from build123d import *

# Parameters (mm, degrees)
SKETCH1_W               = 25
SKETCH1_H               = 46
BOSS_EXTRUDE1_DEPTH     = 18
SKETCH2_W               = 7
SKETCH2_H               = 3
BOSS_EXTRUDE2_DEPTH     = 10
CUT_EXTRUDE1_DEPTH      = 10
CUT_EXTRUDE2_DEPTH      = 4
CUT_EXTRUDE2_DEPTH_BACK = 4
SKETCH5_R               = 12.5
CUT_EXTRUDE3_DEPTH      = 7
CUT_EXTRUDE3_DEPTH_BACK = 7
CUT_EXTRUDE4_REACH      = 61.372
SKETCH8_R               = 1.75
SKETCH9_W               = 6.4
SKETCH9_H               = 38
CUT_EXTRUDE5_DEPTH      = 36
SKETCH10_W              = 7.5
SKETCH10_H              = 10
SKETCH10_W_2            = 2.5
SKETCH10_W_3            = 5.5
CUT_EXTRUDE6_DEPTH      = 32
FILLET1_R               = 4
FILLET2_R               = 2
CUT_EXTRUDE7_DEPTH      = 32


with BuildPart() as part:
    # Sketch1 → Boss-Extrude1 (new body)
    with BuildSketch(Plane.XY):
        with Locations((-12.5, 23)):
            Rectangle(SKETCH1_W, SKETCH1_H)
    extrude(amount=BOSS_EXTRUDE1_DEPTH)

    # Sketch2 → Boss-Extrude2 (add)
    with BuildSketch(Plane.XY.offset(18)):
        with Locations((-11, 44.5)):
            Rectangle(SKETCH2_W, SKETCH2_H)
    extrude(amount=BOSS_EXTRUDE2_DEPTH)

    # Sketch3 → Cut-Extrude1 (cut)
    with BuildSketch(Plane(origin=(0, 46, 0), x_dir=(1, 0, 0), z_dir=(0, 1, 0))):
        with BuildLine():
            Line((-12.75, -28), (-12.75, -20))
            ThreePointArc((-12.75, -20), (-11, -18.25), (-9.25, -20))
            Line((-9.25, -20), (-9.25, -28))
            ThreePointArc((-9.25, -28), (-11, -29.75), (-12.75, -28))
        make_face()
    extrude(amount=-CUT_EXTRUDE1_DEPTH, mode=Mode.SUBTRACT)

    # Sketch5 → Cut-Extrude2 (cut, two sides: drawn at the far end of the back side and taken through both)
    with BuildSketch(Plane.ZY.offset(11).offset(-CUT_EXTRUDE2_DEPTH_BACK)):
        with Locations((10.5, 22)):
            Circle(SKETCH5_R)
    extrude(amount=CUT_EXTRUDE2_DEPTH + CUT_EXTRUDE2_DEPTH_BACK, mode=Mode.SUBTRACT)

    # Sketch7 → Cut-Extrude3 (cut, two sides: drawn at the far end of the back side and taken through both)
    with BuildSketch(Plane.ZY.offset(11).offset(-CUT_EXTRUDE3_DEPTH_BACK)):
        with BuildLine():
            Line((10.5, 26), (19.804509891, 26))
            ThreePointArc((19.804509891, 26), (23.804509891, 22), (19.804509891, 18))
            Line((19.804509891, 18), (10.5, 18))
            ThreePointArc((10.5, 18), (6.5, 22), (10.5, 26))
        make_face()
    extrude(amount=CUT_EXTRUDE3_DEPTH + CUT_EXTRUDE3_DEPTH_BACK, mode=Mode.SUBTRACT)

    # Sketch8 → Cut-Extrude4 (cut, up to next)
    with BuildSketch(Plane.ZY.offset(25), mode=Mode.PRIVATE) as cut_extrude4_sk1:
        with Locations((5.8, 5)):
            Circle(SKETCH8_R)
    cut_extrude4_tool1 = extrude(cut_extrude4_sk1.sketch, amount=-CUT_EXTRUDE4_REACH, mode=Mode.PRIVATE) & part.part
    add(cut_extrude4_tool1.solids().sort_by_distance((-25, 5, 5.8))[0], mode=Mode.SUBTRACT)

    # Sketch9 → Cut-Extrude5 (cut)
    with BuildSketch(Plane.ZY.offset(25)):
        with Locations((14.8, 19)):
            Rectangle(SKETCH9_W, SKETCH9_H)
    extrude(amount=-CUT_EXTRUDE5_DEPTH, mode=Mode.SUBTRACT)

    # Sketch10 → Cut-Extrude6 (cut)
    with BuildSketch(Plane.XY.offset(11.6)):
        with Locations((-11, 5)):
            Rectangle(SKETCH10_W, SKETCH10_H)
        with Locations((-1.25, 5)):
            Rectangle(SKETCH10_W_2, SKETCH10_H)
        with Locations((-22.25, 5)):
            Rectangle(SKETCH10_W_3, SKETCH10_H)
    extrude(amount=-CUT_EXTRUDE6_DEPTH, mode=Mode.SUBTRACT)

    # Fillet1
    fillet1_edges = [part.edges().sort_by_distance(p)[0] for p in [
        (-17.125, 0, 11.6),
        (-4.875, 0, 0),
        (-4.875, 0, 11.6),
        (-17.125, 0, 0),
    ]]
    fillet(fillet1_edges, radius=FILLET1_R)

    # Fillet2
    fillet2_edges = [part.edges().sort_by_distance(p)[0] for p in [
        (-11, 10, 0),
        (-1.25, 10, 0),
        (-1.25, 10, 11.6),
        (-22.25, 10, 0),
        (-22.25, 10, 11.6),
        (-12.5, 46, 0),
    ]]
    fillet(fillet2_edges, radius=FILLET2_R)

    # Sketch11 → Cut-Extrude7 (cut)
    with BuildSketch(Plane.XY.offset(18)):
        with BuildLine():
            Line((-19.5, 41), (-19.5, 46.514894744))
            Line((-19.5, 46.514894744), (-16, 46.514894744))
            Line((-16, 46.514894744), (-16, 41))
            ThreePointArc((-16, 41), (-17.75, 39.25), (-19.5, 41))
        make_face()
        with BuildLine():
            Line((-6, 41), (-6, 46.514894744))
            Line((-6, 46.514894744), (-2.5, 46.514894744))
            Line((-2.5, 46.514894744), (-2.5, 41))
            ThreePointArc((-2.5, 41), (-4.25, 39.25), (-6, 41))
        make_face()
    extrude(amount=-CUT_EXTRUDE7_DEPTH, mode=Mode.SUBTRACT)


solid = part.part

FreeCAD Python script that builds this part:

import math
import FreeCAD as App
import Part
import Sketcher

V = App.Vector
Q = App.Units.Quantity


def edges_at(feature, points):
    """Names of the edges that pass closest to the given points."""
    edges = feature.Shape.Edges
    near = lambda p: min(range(len(edges)), key=lambda i: edges[i].distToShape(Part.Vertex(*p))[0])
    return sorted({f"Edge{near(p) + 1}" for p in points})

doc = App.newDocument("Part")
body = doc.addObject("PartDesign::Body", "Body")

sketch1 = body.newObject("Sketcher::SketchObject", "Sketch")
sketch1.AttachmentSupport = (doc.getObject("XY_Plane"), [""])
sketch1.MapMode = "FlatFace"
sketch1.addGeometry(Part.LineSegment(V(-25, 46, 0), V(-25, 0, 0)), False)
sketch1.addGeometry(Part.LineSegment(V(-25, 0, 0), V(0, 0, 0)), False)
sketch1.addGeometry(Part.LineSegment(V(0, 0, 0), V(0, 46, 0)), False)
sketch1.addGeometry(Part.LineSegment(V(0, 46, 0), V(-25, 46, 0)), False)
sketch1.addConstraint(Sketcher.Constraint("Coincident", 0, 2, 1, 1))
sketch1.addConstraint(Sketcher.Constraint("Coincident", 1, 2, 2, 1))
sketch1.addConstraint(Sketcher.Constraint("Coincident", 2, 2, 3, 1))
sketch1.addConstraint(Sketcher.Constraint("Coincident", 3, 2, 0, 1))
sketch1.addConstraint(Sketcher.Constraint("Vertical", 0))
sketch1.addConstraint(Sketcher.Constraint("Horizontal", 1))
sketch1.addConstraint(Sketcher.Constraint("Vertical", 2))
sketch1.addConstraint(Sketcher.Constraint("Horizontal", 3))
sketch1.addConstraint(Sketcher.Constraint("Coincident", 1, 2, -1, 1))
sketch1.addConstraint(Sketcher.Constraint("DistanceX", 1, 1, 1, 2, Q("25 mm")))
sketch1.addConstraint(Sketcher.Constraint("DistanceY", 0, 2, 0, 1, Q("46 mm")))
pad1 = body.newObject("PartDesign::Pad", "Pad")
pad1.Profile = sketch1
pad1.Length = 18

sketch2 = body.newObject("Sketcher::SketchObject", "Sketch001")
sketch2.AttachmentSupport = (doc.getObject("XY_Plane"), [""])
sketch2.MapMode = "FlatFace"
sketch2.AttachmentOffset = App.Placement(V(0, 0, 18), App.Rotation())
sketch2.addGeometry(Part.LineSegment(V(-14.5, 46, 0), V(-14.5, 43, 0)), False)
sketch2.addGeometry(Part.LineSegment(V(-14.5, 43, 0), V(-7.5, 43, 0)), False)
sketch2.addGeometry(Part.LineSegment(V(-7.5, 43, 0), V(-7.5, 46, 0)), False)
sketch2.addGeometry(Part.LineSegment(V(-7.5, 46, 0), V(-14.5, 46, 0)), False)
sketch2.addConstraint(Sketcher.Constraint("Coincident", 0, 2, 1, 1))
sketch2.addConstraint(Sketcher.Constraint("Coincident", 1, 2, 2, 1))
sketch2.addConstraint(Sketcher.Constraint("Coincident", 2, 2, 3, 1))
sketch2.addConstraint(Sketcher.Constraint("Coincident", 3, 2, 0, 1))
sketch2.addConstraint(Sketcher.Constraint("Vertical", 0))
sketch2.addConstraint(Sketcher.Constraint("Horizontal", 1))
sketch2.addConstraint(Sketcher.Constraint("Vertical", 2))
sketch2.addConstraint(Sketcher.Constraint("Horizontal", 3))
sketch2.addConstraint(Sketcher.Constraint("DistanceX", 1, 1, 1, 2, Q("7 mm")))
sketch2.addConstraint(Sketcher.Constraint("DistanceY", 0, 2, 0, 1, Q("3 mm")))
sketch2.addConstraint(Sketcher.Constraint("DistanceY", -1, 1, 0, 2, Q("43 mm")))
sketch2.addConstraint(Sketcher.Constraint("DistanceX", 0, 2, -1, 1, Q("14.5 mm")))
pad2 = body.newObject("PartDesign::Pad", "Pad001")
pad2.Profile = sketch2
pad2.Length = 10

sketch3 = body.newObject("Sketcher::SketchObject", "Sketch002")
sketch3.AttachmentSupport = (doc.getObject("XZ_Plane"), [""])
sketch3.MapMode = "FlatFace"
sketch3.AttachmentOffset = App.Placement(V(0, 0, -46), App.Rotation())
sketch3.addGeometry(Part.LineSegment(V(-12.75, 20, 0), V(-12.75, 28, 0)), False)
sketch3.addGeometry(Part.ArcOfCircle(Part.Circle(V(-11, 28, 0), V(0, 0, 1), 1.75), math.radians(0), math.radians(180)), False)
sketch3.addGeometry(Part.LineSegment(V(-9.25, 28, 0), V(-9.25, 20, 0)), False)
sketch3.addGeometry(Part.ArcOfCircle(Part.Circle(V(-11, 20, 0), V(0, 0, 1), 1.75), math.radians(180), math.radians(360)), False)
sketch3.addConstraint(Sketcher.Constraint("Tangent", 0, 2, 1, 2))
sketch3.addConstraint(Sketcher.Constraint("Tangent", 1, 1, 2, 1))
sketch3.addConstraint(Sketcher.Constraint("Tangent", 2, 2, 3, 2))
sketch3.addConstraint(Sketcher.Constraint("Tangent", 3, 1, 0, 1))
sketch3.addConstraint(Sketcher.Constraint("Vertical", 0))
sketch3.addConstraint(Sketcher.Constraint("Vertical", 2))
sketch3.addConstraint(Sketcher.Constraint("DistanceY", 0, 1, 0, 2, Q("8 mm")))
sketch3.addConstraint(Sketcher.Constraint("Radius", 1, Q("1.75 mm")))
sketch3.addConstraint(Sketcher.Constraint("DistanceX", 1, 3, -1, 1, Q("11 mm")))
sketch3.addConstraint(Sketcher.Constraint("DistanceY", -1, 1, 1, 3, Q("28 mm")))
pocket1 = body.newObject("PartDesign::Pocket", "Pocket")
pocket1.Profile = sketch3
pocket1.Length = 10
pocket1.Reversed = True

sketch4 = body.newObject("Sketcher::SketchObject", "Sketch003")
sketch4.AttachmentSupport = (doc.getObject("YZ_Plane"), [""])
sketch4.MapMode = "FlatFace"
sketch4.AttachmentOffset = App.Placement(V(0, 0, -11), App.Rotation())
sketch4.addGeometry(Part.Circle(V(22, 10.5, 0), V(0, 0, 1), 12.5), False)
sketch4.addConstraint(Sketcher.Constraint("Diameter", 0, Q("25 mm")))
sketch4.addConstraint(Sketcher.Constraint("DistanceX", -1, 1, 0, 3, Q("22 mm")))
sketch4.addConstraint(Sketcher.Constraint("DistanceY", -1, 1, 0, 3, Q("10.5 mm")))
pocket2 = body.newObject("PartDesign::Pocket", "Pocket001")
pocket2.Profile = sketch4
pocket2.Type = "TwoLengths"
pocket2.Length = 4
pocket2.Length2 = 4

sketch5 = body.newObject("Sketcher::SketchObject", "Sketch004")
sketch5.AttachmentSupport = (doc.getObject("YZ_Plane"), [""])
sketch5.MapMode = "FlatFace"
sketch5.AttachmentOffset = App.Placement(V(0, 0, -11), App.Rotation())
sketch5.addGeometry(Part.LineSegment(V(26, 19.80451, 0), V(26, 10.5, 0)), False)
sketch5.addGeometry(Part.ArcOfCircle(Part.Circle(V(22, 10.5, 0), V(0, 0, 1), 4), math.radians(180), math.radians(360)), False)
sketch5.addGeometry(Part.LineSegment(V(18, 10.5, 0), V(18, 19.80451, 0)), False)
sketch5.addGeometry(Part.ArcOfCircle(Part.Circle(V(22, 19.80451, 0), V(0, 0, 1), 4), math.radians(0), math.radians(180)), False)
sketch5.addConstraint(Sketcher.Constraint("Tangent", 0, 2, 1, 2))
sketch5.addConstraint(Sketcher.Constraint("Tangent", 1, 1, 2, 1))
sketch5.addConstraint(Sketcher.Constraint("Tangent", 2, 2, 3, 2))
sketch5.addConstraint(Sketcher.Constraint("Tangent", 3, 1, 0, 1))
sketch5.addConstraint(Sketcher.Constraint("Vertical", 0))
sketch5.addConstraint(Sketcher.Constraint("Vertical", 2))
sketch5.addConstraint(Sketcher.Constraint("Radius", 1, Q("4 mm")))
sketch5.addConstraint(Sketcher.Constraint("DistanceX", -1, 1, 1, 3, Q("22 mm")))
sketch5.addConstraint(Sketcher.Constraint("DistanceY", -1, 1, 1, 3, Q("10.5 mm")))
sketch5.addConstraint(Sketcher.Constraint("DistanceY", 0, 2, 0, 1, Q("9.30451 mm")))
pocket3 = body.newObject("PartDesign::Pocket", "Pocket002")
pocket3.Profile = sketch5
pocket3.Type = "TwoLengths"
pocket3.Length = 7
pocket3.Length2 = 7

sketch6 = body.newObject("Sketcher::SketchObject", "Sketch005")
sketch6.AttachmentSupport = (doc.getObject("YZ_Plane"), [""])
sketch6.MapMode = "FlatFace"
sketch6.AttachmentOffset = App.Placement(V(0, 0, -25), App.Rotation())
sketch6.addGeometry(Part.Circle(V(5, 5.8, 0), V(0, 0, 1), 1.75), False)
sketch6.addConstraint(Sketcher.Constraint("Diameter", 0, Q("3.5 mm")))
sketch6.addConstraint(Sketcher.Constraint("DistanceX", -1, 1, 0, 3, Q("5 mm")))
sketch6.addConstraint(Sketcher.Constraint("DistanceY", -1, 1, 0, 3, Q("5.8 mm")))
pocket4 = body.newObject("PartDesign::Pocket", "Pocket003")
pocket4.Profile = sketch6
pocket4.Type = "UpToFirst"
pocket4.Reversed = True

sketch7 = body.newObject("Sketcher::SketchObject", "Sketch006")
sketch7.AttachmentSupport = (doc.getObject("YZ_Plane"), [""])
sketch7.MapMode = "FlatFace"
sketch7.AttachmentOffset = App.Placement(V(0, 0, -25), App.Rotation())
sketch7.addGeometry(Part.LineSegment(V(38, 11.6, 0), V(0, 11.6, 0)), False)
sketch7.addGeometry(Part.LineSegment(V(0, 11.6, 0), V(0, 18, 0)), False)
sketch7.addGeometry(Part.LineSegment(V(0, 18, 0), V(38, 18, 0)), False)
sketch7.addGeometry(Part.LineSegment(V(38, 18, 0), V(38, 11.6, 0)), False)
sketch7.addConstraint(Sketcher.Constraint("Coincident", 0, 2, 1, 1))
sketch7.addConstraint(Sketcher.Constraint("Coincident", 1, 2, 2, 1))
sketch7.addConstraint(Sketcher.Constraint("Coincident", 2, 2, 3, 1))
sketch7.addConstraint(Sketcher.Constraint("Coincident", 3, 2, 0, 1))
sketch7.addConstraint(Sketcher.Constraint("Horizontal", 0))
sketch7.addConstraint(Sketcher.Constraint("Vertical", 1))
sketch7.addConstraint(Sketcher.Constraint("Horizontal", 2))
sketch7.addConstraint(Sketcher.Constraint("Vertical", 3))
sketch7.addConstraint(Sketcher.Constraint("PointOnObject", 0, 2, -2))
sketch7.addConstraint(Sketcher.Constraint("DistanceX", 0, 2, 0, 1, Q("38 mm")))
sketch7.addConstraint(Sketcher.Constraint("DistanceY", 1, 1, 1, 2, Q("6.4 mm")))
sketch7.addConstraint(Sketcher.Constraint("DistanceY", -1, 1, 1, 2, Q("18 mm")))
pocket5 = body.newObject("PartDesign::Pocket", "Pocket004")
pocket5.Profile = sketch7
pocket5.Length = 36
pocket5.Reversed = True

sketch8 = body.newObject("Sketcher::SketchObject", "Sketch007")
sketch8.AttachmentSupport = (doc.getObject("XY_Plane"), [""])
sketch8.MapMode = "FlatFace"
sketch8.AttachmentOffset = App.Placement(V(0, 0, 11.6), App.Rotation())
sketch8.addGeometry(Part.LineSegment(V(-14.75, 10, 0), V(-14.75, 0, 0)), False)
sketch8.addGeometry(Part.LineSegment(V(-14.75, 0, 0), V(-7.25, 0, 0)), False)
sketch8.addGeometry(Part.LineSegment(V(-7.25, 0, 0), V(-7.25, 10, 0)), False)
sketch8.addGeometry(Part.LineSegment(V(-7.25, 10, 0), V(-14.75, 10, 0)), False)
sketch8.addGeometry(Part.LineSegment(V(-2.5, 10, 0), V(-2.5, 0, 0)), False)
sketch8.addGeometry(Part.LineSegment(V(-2.5, 0, 0), V(0, 0, 0)), False)
sketch8.addGeometry(Part.LineSegment(V(0, 0, 0), V(0, 10, 0)), False)
sketch8.addGeometry(Part.LineSegment(V(0, 10, 0), V(-2.5, 10, 0)), False)
sketch8.addGeometry(Part.LineSegment(V(-25, 10, 0), V(-25, 0, 0)), False)
sketch8.addGeometry(Part.LineSegment(V(-25, 0, 0), V(-19.5, 0, 0)), False)
sketch8.addGeometry(Part.LineSegment(V(-19.5, 0, 0), V(-19.5, 10, 0)), False)
sketch8.addGeometry(Part.LineSegment(V(-19.5, 10, 0), V(-25, 10, 0)), False)
sketch8.addConstraint(Sketcher.Constraint("Coincident", 0, 2, 1, 1))
sketch8.addConstraint(Sketcher.Constraint("Coincident", 1, 2, 2, 1))
sketch8.addConstraint(Sketcher.Constraint("Coincident", 2, 2, 3, 1))
sketch8.addConstraint(Sketcher.Constraint("Coincident", 3, 2, 0, 1))
sketch8.addConstraint(Sketcher.Constraint("Coincident", 4, 2, 5, 1))
sketch8.addConstraint(Sketcher.Constraint("Coincident", 5, 2, 6, 1))
sketch8.addConstraint(Sketcher.Constraint("Coincident", 6, 2, 7, 1))
sketch8.addConstraint(Sketcher.Constraint("Coincident", 7, 2, 4, 1))
sketch8.addConstraint(Sketcher.Constraint("Coincident", 8, 2, 9, 1))
sketch8.addConstraint(Sketcher.Constraint("Coincident", 9, 2, 10, 1))
sketch8.addConstraint(Sketcher.Constraint("Coincident", 10, 2, 11, 1))
sketch8.addConstraint(Sketcher.Constraint("Coincident", 11, 2, 8, 1))
sketch8.addConstraint(Sketcher.Constraint("Vertical", 0))
sketch8.addConstraint(Sketcher.Constraint("Horizontal", 1))
sketch8.addConstraint(Sketcher.Constraint("Vertical", 2))
sketch8.addConstraint(Sketcher.Constraint("Horizontal", 3))
sketch8.addConstraint(Sketcher.Constraint("Vertical", 4))
sketch8.addConstraint(Sketcher.Constraint("Horizontal", 5))
sketch8.addConstraint(Sketcher.Constraint("Vertical", 6))
sketch8.addConstraint(Sketcher.Constraint("Horizontal", 7))
sketch8.addConstraint(Sketcher.Constraint("Vertical", 8))
sketch8.addConstraint(Sketcher.Constraint("Horizontal", 9))
sketch8.addConstraint(Sketcher.Constraint("Vertical", 10))
sketch8.addConstraint(Sketcher.Constraint("Horizontal", 11))
sketch8.addConstraint(Sketcher.Constraint("Coincident", 5, 2, -1, 1))
sketch8.addConstraint(Sketcher.Constraint("PointOnObject", 0, 2, -1))
sketch8.addConstraint(Sketcher.Constraint("PointOnObject", 8, 2, -1))
sketch8.addConstraint(Sketcher.Constraint("Horizontal", 3, 2, 6, 2))
sketch8.addConstraint(Sketcher.Constraint("Horizontal", 7, 2, 10, 2))
sketch8.addConstraint(Sketcher.Constraint("DistanceY", 0, 2, 0, 1, Q("10 mm")))
sketch8.addConstraint(Sketcher.Constraint("DistanceX", 1, 1, 1, 2, Q("7.5 mm")))
sketch8.addConstraint(Sketcher.Constraint("DistanceX", 5, 1, 5, 2, Q("2.5 mm")))
sketch8.addConstraint(Sketcher.Constraint("DistanceX", 9, 1, 9, 2, Q("5.5 mm")))
sketch8.addConstraint(Sketcher.Constraint("DistanceX", 8, 2, -1, 1, Q("25 mm")))
sketch8.addConstraint(Sketcher.Constraint("DistanceX", 0, 2, -1, 1, Q("14.75 mm")))
pocket6 = body.newObject("PartDesign::Pocket", "Pocket005")
pocket6.Profile = sketch8
pocket6.Length = 32
doc.recompute()

fillet = body.newObject("PartDesign::Fillet", "Fillet")
fillet.Base = (pocket6, edges_at(pocket6, [
    (-17.125, 0, 11.6),
    (-4.875, 0, 0),
    (-4.875, 0, 11.6),
    (-17.125, 0, 0),
]))
fillet.Radius = 4
doc.recompute()

fillet2 = body.newObject("PartDesign::Fillet", "Fillet001")
fillet2.Base = (fillet, edges_at(fillet, [
    (-11, 10, 0),
    (-1.25, 10, 0),
    (-1.25, 10, 11.6),
    (-22.25, 10, 0),
    (-22.25, 10, 11.6),
    (-12.5, 46, 0),
]))
fillet2.Radius = 2

sketch9 = body.newObject("Sketcher::SketchObject", "Sketch008")
sketch9.AttachmentSupport = (doc.getObject("XY_Plane"), [""])
sketch9.MapMode = "FlatFace"
sketch9.AttachmentOffset = App.Placement(V(0, 0, 18), App.Rotation())
sketch9.addGeometry(Part.LineSegment(V(-19.5, 46.514895, 0), V(-19.5, 41, 0)), False)
sketch9.addGeometry(Part.ArcOfCircle(Part.Circle(V(-17.75, 41, 0), V(0, 0, 1), 1.75), math.radians(180), math.radians(360)), False)
sketch9.addGeometry(Part.LineSegment(V(-16, 41, 0), V(-16, 46.514895, 0)), False)
sketch9.addGeometry(Part.LineSegment(V(-16, 46.514895, 0), V(-19.5, 46.514895, 0)), False)
sketch9.addGeometry(Part.LineSegment(V(-6, 46.514895, 0), V(-6, 41, 0)), False)
sketch9.addGeometry(Part.ArcOfCircle(Part.Circle(V(-4.25, 41, 0), V(0, 0, 1), 1.75), math.radians(180), math.radians(360)), False)
sketch9.addGeometry(Part.LineSegment(V(-2.5, 41, 0), V(-2.5, 46.514895, 0)), False)
sketch9.addGeometry(Part.LineSegment(V(-2.5, 46.514895, 0), V(-6, 46.514895, 0)), False)
sketch9.addConstraint(Sketcher.Constraint("Tangent", 0, 2, 1, 1))
sketch9.addConstraint(Sketcher.Constraint("Tangent", 1, 2, 2, 1))
sketch9.addConstraint(Sketcher.Constraint("Coincident", 2, 2, 3, 1))
sketch9.addConstraint(Sketcher.Constraint("Coincident", 3, 2, 0, 1))
sketch9.addConstraint(Sketcher.Constraint("Tangent", 4, 2, 5, 1))
sketch9.addConstraint(Sketcher.Constraint("Tangent", 5, 2, 6, 1))
sketch9.addConstraint(Sketcher.Constraint("Coincident", 6, 2, 7, 1))
sketch9.addConstraint(Sketcher.Constraint("Coincident", 7, 2, 4, 1))
sketch9.addConstraint(Sketcher.Constraint("Vertical", 0))
sketch9.addConstraint(Sketcher.Constraint("Vertical", 2))
sketch9.addConstraint(Sketcher.Constraint("Horizontal", 3))
sketch9.addConstraint(Sketcher.Constraint("Vertical", 4))
sketch9.addConstraint(Sketcher.Constraint("Vertical", 6))
sketch9.addConstraint(Sketcher.Constraint("Horizontal", 7))
sketch9.addConstraint(Sketcher.Constraint("Equal", 1, 5))
sketch9.addConstraint(Sketcher.Constraint("Horizontal", 1, 3, 5, 3))
sketch9.addConstraint(Sketcher.Constraint("Horizontal", 3, 2, 6, 2))
sketch9.addConstraint(Sketcher.Constraint("Radius", 1, Q("1.75 mm")))
sketch9.addConstraint(Sketcher.Constraint("DistanceY", -1, 1, 1, 3, Q("41 mm")))
sketch9.addConstraint(Sketcher.Constraint("DistanceX", 1, 2, -1, 1, Q("16 mm")))
sketch9.addConstraint(Sketcher.Constraint("DistanceX", 4, 2, -1, 1, Q("6 mm")))
sketch9.addConstraint(Sketcher.Constraint("DistanceY", 0, 2, 0, 1, Q("5.514895 mm")))
pocket7 = body.newObject("PartDesign::Pocket", "Pocket006")
pocket7.Profile = sketch9
pocket7.Length = 32

doc.recompute()
